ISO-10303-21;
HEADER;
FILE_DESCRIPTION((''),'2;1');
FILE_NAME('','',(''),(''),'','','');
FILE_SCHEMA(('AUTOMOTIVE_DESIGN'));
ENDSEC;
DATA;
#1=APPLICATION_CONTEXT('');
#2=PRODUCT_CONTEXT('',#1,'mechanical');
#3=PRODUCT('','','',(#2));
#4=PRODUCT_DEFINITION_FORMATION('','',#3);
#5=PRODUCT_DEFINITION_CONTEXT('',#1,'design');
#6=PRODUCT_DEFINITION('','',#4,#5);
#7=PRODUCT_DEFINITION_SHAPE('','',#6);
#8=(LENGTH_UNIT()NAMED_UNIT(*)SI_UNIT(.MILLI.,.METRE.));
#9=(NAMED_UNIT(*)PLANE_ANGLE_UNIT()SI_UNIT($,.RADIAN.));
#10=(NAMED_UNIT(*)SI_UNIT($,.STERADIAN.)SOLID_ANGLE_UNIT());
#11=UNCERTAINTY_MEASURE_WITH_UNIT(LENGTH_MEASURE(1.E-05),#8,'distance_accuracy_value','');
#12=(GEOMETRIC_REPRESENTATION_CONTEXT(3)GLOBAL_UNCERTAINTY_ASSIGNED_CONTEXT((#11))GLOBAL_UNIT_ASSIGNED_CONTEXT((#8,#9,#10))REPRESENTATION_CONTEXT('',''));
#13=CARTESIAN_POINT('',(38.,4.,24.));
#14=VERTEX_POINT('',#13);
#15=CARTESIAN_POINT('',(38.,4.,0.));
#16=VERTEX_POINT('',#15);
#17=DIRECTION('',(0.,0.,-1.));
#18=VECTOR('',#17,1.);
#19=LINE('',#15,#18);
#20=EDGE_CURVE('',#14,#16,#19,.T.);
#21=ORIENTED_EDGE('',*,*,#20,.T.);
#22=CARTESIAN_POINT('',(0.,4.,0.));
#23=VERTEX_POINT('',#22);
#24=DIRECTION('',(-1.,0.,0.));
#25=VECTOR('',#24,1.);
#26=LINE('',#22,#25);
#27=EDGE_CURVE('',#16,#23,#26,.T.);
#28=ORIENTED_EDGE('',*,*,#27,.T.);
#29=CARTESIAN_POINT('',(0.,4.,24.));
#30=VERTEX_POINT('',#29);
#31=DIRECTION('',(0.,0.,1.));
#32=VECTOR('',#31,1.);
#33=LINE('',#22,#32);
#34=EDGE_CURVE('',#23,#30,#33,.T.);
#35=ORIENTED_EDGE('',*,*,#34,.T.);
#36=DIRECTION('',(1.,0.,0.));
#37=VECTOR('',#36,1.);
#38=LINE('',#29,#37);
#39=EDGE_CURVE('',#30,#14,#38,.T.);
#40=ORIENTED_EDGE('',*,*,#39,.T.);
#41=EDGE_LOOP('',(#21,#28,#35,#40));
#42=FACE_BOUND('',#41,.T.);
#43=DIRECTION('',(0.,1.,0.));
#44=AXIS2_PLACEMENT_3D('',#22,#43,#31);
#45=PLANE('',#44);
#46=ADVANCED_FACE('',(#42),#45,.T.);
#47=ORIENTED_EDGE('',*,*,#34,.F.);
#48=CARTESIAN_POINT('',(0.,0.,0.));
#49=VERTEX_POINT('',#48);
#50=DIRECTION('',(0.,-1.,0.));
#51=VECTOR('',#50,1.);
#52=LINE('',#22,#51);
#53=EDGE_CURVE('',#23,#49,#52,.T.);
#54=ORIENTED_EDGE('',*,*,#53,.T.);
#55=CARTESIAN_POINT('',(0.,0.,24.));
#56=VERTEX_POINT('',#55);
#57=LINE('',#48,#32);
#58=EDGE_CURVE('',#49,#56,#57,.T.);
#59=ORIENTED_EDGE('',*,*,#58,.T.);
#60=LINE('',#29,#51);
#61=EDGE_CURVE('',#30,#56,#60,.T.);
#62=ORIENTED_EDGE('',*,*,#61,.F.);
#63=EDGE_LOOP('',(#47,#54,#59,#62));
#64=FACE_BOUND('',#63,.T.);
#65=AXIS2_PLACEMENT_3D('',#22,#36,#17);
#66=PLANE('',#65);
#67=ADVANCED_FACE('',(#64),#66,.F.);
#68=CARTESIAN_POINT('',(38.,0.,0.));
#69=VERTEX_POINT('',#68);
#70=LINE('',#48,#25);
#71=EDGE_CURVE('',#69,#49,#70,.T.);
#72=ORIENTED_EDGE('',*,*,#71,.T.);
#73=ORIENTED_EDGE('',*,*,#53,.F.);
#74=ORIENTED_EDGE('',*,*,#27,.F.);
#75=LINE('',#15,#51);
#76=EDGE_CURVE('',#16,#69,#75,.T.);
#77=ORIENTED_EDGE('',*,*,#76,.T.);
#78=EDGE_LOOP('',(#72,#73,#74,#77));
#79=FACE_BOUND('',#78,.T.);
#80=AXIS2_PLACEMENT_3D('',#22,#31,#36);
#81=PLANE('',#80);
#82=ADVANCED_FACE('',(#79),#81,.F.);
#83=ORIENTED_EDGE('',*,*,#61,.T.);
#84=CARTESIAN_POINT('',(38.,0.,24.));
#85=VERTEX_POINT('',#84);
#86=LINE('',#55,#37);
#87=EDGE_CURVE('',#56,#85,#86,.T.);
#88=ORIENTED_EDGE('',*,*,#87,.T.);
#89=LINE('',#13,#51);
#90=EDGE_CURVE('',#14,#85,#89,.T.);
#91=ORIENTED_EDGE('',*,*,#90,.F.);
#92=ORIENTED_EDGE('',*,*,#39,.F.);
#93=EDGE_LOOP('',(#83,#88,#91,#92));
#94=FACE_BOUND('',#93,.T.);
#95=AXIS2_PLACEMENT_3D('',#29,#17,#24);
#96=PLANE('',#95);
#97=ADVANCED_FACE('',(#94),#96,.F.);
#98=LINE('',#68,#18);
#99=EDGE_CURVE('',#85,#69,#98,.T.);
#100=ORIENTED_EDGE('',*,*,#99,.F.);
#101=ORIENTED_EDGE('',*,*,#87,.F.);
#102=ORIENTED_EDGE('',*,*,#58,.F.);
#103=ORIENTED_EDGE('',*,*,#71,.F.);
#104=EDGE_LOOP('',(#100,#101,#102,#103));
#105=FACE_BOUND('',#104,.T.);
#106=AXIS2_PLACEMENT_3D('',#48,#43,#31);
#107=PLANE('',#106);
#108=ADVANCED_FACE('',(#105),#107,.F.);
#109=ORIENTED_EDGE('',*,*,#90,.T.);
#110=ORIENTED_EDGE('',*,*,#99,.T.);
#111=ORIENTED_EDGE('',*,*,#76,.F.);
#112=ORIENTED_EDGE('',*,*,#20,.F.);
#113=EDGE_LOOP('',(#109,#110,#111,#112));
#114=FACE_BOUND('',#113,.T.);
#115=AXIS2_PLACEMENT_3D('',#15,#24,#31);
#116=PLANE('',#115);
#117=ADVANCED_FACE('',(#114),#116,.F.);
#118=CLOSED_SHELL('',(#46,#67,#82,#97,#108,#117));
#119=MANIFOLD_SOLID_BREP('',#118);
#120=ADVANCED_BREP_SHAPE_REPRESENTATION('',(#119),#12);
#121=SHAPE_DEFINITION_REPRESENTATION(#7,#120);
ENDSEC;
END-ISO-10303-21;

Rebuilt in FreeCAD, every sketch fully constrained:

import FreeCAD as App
import Part
import Sketcher
from FreeCAD import Vector
Q = App.Units.Quantity


def add_polygon(sketch, points):
    """Adds a closed chain of lines whose ends are joined by coincident constraints."""
    first, n = sketch.GeometryCount, len(points)
    for a, b in zip(points, points[1:] + points[:1]):
        sketch.addGeometry(Part.LineSegment(App.Vector(*a, 0), App.Vector(*b, 0)), False)
    for i in range(n):
        sketch.addConstraint(Sketcher.Constraint("Coincident", first + i, 2, first + (i + 1) % n, 1))

doc = App.newDocument("Part")
body = doc.addObject("PartDesign::Body", "Body")

# Sketch on XZ plane
sketch1 = body.newObject("Sketcher::SketchObject", "Sketch")
sketch1.AttachmentSupport = (doc.getObject("XZ_Plane"), [""])
sketch1.MapMode = "FlatFace"
add_polygon(sketch1, [(0, 0), (0, 24), (38, 24), (38, 0)])  # lines 0-3
sketch1.addConstraint([
    Sketcher.Constraint("Vertical", 0),
    Sketcher.Constraint("Horizontal", 1),
    Sketcher.Constraint("Vertical", 2),
    Sketcher.Constraint("Horizontal", 3),
    Sketcher.Constraint("Coincident", 3, 2, -1, 1),
    Sketcher.Constraint("DistanceX", 1, 1, 1, 2, Q("38 mm")),
    Sketcher.Constraint("DistanceY", 0, 1, 0, 2, Q("24 mm")),
])
pad1 = body.newObject("PartDesign::Pad", "Pad")
pad1.Profile = sketch1
pad1.Length = 4
pad1.Reversed = True

doc.recompute()
